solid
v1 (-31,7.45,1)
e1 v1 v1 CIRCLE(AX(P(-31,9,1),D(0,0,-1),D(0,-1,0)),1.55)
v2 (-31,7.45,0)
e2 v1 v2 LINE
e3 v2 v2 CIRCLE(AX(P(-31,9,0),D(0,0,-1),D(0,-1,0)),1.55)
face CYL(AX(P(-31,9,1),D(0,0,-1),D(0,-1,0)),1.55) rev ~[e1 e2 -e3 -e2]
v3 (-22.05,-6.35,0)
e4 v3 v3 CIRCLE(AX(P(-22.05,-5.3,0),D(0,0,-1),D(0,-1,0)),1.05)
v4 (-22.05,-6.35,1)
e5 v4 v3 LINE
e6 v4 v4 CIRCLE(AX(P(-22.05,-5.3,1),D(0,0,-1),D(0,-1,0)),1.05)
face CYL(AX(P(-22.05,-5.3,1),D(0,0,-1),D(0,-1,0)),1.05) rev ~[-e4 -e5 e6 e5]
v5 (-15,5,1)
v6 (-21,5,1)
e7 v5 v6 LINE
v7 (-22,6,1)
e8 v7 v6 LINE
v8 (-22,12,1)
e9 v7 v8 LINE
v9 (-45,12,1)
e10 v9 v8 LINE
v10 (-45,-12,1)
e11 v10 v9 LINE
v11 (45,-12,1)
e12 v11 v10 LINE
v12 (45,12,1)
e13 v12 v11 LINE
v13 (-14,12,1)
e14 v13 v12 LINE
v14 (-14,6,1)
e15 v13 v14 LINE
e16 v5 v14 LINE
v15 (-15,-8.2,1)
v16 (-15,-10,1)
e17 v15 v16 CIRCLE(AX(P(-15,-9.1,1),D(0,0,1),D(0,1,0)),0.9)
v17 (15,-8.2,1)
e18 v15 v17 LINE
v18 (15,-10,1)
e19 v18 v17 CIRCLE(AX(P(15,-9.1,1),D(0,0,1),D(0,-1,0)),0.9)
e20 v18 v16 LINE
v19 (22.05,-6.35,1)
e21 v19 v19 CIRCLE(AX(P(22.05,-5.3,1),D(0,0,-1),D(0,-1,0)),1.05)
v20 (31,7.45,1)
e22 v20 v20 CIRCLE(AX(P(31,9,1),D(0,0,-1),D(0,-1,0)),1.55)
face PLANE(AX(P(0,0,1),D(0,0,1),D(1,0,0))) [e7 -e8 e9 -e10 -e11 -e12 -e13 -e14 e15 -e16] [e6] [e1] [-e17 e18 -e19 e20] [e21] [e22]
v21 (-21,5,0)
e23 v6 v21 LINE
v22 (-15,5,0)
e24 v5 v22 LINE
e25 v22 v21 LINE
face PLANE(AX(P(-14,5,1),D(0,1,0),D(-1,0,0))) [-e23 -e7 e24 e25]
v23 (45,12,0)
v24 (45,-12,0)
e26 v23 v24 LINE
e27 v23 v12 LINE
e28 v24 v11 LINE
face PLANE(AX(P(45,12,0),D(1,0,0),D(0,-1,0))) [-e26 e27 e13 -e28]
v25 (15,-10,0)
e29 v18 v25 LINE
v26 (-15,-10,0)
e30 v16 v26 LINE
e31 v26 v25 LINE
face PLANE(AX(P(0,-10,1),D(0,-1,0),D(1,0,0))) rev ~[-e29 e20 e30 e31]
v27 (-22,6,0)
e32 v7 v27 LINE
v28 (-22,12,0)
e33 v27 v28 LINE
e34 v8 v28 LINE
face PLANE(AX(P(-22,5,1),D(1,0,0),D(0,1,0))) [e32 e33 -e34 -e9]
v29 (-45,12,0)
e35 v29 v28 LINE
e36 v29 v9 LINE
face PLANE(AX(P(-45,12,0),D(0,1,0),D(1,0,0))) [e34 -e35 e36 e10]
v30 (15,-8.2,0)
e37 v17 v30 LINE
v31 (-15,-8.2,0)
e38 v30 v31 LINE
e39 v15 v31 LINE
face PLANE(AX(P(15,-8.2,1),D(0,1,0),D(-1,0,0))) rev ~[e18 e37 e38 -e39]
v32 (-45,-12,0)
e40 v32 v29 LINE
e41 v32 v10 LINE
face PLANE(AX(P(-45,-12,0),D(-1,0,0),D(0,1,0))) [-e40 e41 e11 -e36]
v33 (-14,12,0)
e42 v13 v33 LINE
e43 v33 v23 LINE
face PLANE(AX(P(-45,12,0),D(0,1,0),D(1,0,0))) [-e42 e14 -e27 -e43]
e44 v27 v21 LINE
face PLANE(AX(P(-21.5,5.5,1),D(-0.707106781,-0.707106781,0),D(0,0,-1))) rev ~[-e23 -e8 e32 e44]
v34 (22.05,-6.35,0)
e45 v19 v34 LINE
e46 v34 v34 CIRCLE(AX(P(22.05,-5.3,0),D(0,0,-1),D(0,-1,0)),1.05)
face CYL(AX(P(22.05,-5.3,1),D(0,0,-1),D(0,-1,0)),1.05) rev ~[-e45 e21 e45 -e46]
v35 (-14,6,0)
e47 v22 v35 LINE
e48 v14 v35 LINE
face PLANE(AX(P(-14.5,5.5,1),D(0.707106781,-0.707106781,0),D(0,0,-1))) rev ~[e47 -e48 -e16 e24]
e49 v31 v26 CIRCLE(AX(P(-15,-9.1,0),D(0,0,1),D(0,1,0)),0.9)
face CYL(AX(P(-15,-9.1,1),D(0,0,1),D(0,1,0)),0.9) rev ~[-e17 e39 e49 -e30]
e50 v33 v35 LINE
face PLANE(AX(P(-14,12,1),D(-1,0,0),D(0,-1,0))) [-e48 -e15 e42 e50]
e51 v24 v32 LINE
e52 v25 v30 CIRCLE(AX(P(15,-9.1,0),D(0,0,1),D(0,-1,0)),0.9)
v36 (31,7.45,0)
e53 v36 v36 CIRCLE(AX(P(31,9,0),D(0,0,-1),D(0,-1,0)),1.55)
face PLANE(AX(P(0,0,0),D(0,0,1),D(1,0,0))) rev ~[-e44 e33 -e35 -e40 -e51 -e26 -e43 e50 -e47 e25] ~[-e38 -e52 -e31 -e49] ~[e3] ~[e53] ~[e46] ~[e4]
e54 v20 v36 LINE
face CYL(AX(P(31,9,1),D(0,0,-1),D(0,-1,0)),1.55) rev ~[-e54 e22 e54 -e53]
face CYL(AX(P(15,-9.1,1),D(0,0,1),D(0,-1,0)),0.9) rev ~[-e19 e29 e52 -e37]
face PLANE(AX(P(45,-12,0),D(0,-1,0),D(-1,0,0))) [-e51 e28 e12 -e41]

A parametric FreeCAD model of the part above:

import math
import FreeCAD as App
import Part
import Sketcher


def edges_at(feature, points):
    """Names of the edges that pass closest to the given points."""
    edges = feature.Shape.Edges
    near = lambda p: min(range(len(edges)), key=lambda i: edges[i].distToShape(Part.Vertex(*p))[0])
    return sorted({f"Edge{near(p) + 1}" for p in points})

doc = App.newDocument("Part")
body = doc.addObject("PartDesign::Body", "Body")

# Sketch on XY plane
sketch1 = doc.addObject("Sketcher::SketchObject", "Sketch")
body.addObject(sketch1)
sketch1.AttachmentSupport = (doc.XY_Plane, [""])
sketch1.MapMode = "FlatFace"
sketch1.addGeometry([
    Part.LineSegment(App.Vector(45, 12, 0), App.Vector(-45, 12, 0)),
    Part.LineSegment(App.Vector(-45, 12, 0), App.Vector(-45, -12, 0)),
    Part.LineSegment(App.Vector(-45, -12, 0), App.Vector(45, -12, 0)),
    Part.LineSegment(App.Vector(45, -12, 0), App.Vector(45, 12, 0)),
], False)
sketch1.addConstraint([
    Sketcher.Constraint("Coincident", 0, 2, 1, 1),
    Sketcher.Constraint("Coincident", 1, 2, 2, 1),
    Sketcher.Constraint("Coincident", 2, 2, 3, 1),
    Sketcher.Constraint("Coincident", 3, 2, 0, 1),
    Sketcher.Constraint("Horizontal", 0),
    Sketcher.Constraint("Vertical", 1),
    Sketcher.Constraint("Horizontal", 2),
    Sketcher.Constraint("Vertical", 3),
    Sketcher.Constraint("Symmetric", 0, 2, 2, 2, -1, 1),
    Sketcher.Constraint("DistanceX", 0, 2, 0, 1, 90.0),
    Sketcher.Constraint("DistanceY", 1, 2, 1, 1, 24.0),
])
pad1 = doc.addObject("PartDesign::Pad", "Pad")
body.addObject(pad1)
pad1.Profile = sketch1
pad1.Length = 1

# Sketch on XY plane
sketch2 = doc.addObject("Sketcher::SketchObject", "Sketch001")
body.addObject(sketch2)
sketch2.AttachmentSupport = (doc.XY_Plane, [""])
sketch2.MapMode = "FlatFace"
sketch2.AttachmentOffset = App.Placement(App.Vector(0, 0, 1), App.Rotation())
sketch2.addGeometry([
    Part.ArcOfCircle(Part.Circle(App.Vector(15, -9.1, 0), App.Vector(0, 0, 1), 0.9), math.radians(-90), math.radians(90)),
    Part.LineSegment(App.Vector(15, -8.2, 0), App.Vector(-15, -8.2, 0)),
    Part.ArcOfCircle(Part.Circle(App.Vector(-15, -9.1, 0), App.Vector(0, 0, 1), 0.9), math.radians(90), math.radians(270)),
    Part.LineSegment(App.Vector(-15, -10, 0), App.Vector(15, -10, 0)),
], False)
sketch2.addConstraint([
    Sketcher.Constraint("Tangent", 0, 2, 1, 1),
    Sketcher.Constraint("Tangent", 1, 2, 2, 1),
    Sketcher.Constraint("Tangent", 2, 2, 3, 1),
    Sketcher.Constraint("Tangent", 3, 2, 0, 1),
    Sketcher.Constraint("Horizontal", 1),
    Sketcher.Constraint("Horizontal", 3),
    Sketcher.Constraint("Radius", 0, 0.9),
    Sketcher.Constraint("DistanceX", 1, 2, 1, 1, 30.0),
    Sketcher.Constraint("DistanceX", -1, 1, 0, 3, 15.0),
    Sketcher.Constraint("DistanceY", 2, 2, -1, 1, 10.0),
])
pocket1 = doc.addObject("PartDesign::Pocket", "Pocket")
body.addObject(pocket1)
pocket1.Profile = sketch2
pocket1.Type = "ThroughAll"

# Sketch on XY plane
sketch3 = doc.addObject("Sketcher::SketchObject", "Sketch002")
body.addObject(sketch3)
sketch3.AttachmentSupport = (doc.XY_Plane, [""])
sketch3.MapMode = "FlatFace"
sketch3.AttachmentOffset = App.Placement(App.Vector(0, 0, 1), App.Rotation())
sketch3.addGeometry([
    Part.Circle(App.Vector(-31, 9, 0), App.Vector(0, 0, 1), 1.55),
    Part.Circle(App.Vector(31, 9, 0), App.Vector(0, 0, 1), 1.55),
], False)
sketch3.addConstraint([
    Sketcher.Constraint("Equal", 0, 1),
    Sketcher.Constraint("Symmetric", 0, 3, 1, 3, -2),
    Sketcher.Constraint("Diameter", 0, 3.1),
    Sketcher.Constraint("DistanceX", 0, 3, -1, 1, 31.0),
    Sketcher.Constraint("DistanceY", -1, 1, 0, 3, 9.0),
])
doc.recompute()
hole = doc.addObject("PartDesign::Hole", "Hole")
body.addObject(hole)
hole.Profile = sketch3
hole.ThreadType = "None"
hole.Diameter = 3.1
hole.DepthType = "ThroughAll"

# Sketch on XY plane
sketch4 = doc.addObject("Sketcher::SketchObject", "Sketch003")
body.addObject(sketch4)
sketch4.AttachmentSupport = (doc.XY_Plane, [""])
sketch4.MapMode = "FlatFace"
sketch4.AttachmentOffset = App.Placement(App.Vector(0, 0, 1), App.Rotation())
sketch4.addGeometry([
    Part.Circle(App.Vector(22.05, -5.3, 0), App.Vector(0, 0, 1), 1.05),
    Part.Circle(App.Vector(-22.05, -5.3, 0), App.Vector(0, 0, 1), 1.05),
], False)
sketch4.addConstraint([
    Sketcher.Constraint("Equal", 0, 1),
    Sketcher.Constraint("Symmetric", 0, 3, 1, 3, -2),
    Sketcher.Constraint("Diameter", 0, 2.1),
    Sketcher.Constraint("DistanceY", 0, 3, -1, 1, 5.3),
    Sketcher.Constraint("DistanceX", 1, 3, 0, 3, 44.1),
])
doc.recompute()
hole2 = doc.addObject("PartDesign::Hole", "Hole001")
body.addObject(hole2)
hole2.Profile = sketch4
hole2.ThreadType = "None"
hole2.Diameter = 2.1
hole2.DepthType = "ThroughAll"

# Sketch on XY plane
sketch5 = doc.addObject("Sketcher::SketchObject", "Sketch004")
body.addObject(sketch5)
sketch5.AttachmentSupport = (doc.XY_Plane, [""])
sketch5.MapMode = "FlatFace"
sketch5.AttachmentOffset = App.Placement(App.Vector(0, 0, 1), App.Rotation())
sketch5.addGeometry([
    Part.LineSegment(App.Vector(-14, 12, 0), App.Vector(-22, 12, 0)),
    Part.LineSegment(App.Vector(-22, 12, 0), App.Vector(-22, 5, 0)),
    Part.LineSegment(App.Vector(-22, 5, 0), App.Vector(-14, 5, 0)),
    Part.LineSegment(App.Vector(-14, 5, 0), App.Vector(-14, 12, 0)),
], False)
sketch5.addConstraint([
    Sketcher.Constraint("Coincident", 0, 2, 1, 1),
    Sketcher.Constraint("Coincident", 1, 2, 2, 1),
    Sketcher.Constraint("Coincident", 2, 2, 3, 1),
    Sketcher.Constraint("Coincident", 3, 2, 0, 1),
    Sketcher.Constraint("Horizontal", 0),
    Sketcher.Constraint("Vertical", 1),
    Sketcher.Constraint("Horizontal", 2),
    Sketcher.Constraint("Vertical", 3),
    Sketcher.Constraint("DistanceX", 0, 2, 0, 1, 8.0),
    Sketcher.Constraint("DistanceY", 1, 2, 1, 1, 7.0),
    Sketcher.Constraint("DistanceX", 0, 2, -1, 1, 22.0),
    Sketcher.Constraint("DistanceY", -1, 1, 0, 2, 12.0),
])
pocket2 = doc.addObject("PartDesign::Pocket", "Pocket001")
body.addObject(pocket2)
pocket2.Profile = sketch5
pocket2.Type = "ThroughAll"
doc.recompute()

chamfer = doc.addObject("PartDesign::Chamfer", "Chamfer")
body.addObject(chamfer)
chamfer.Base = (pocket2, edges_at(pocket2, [(-22, 5, 0.5), (-14, 5, 0.5)]))
chamfer.Size = 1

doc.recompute()
